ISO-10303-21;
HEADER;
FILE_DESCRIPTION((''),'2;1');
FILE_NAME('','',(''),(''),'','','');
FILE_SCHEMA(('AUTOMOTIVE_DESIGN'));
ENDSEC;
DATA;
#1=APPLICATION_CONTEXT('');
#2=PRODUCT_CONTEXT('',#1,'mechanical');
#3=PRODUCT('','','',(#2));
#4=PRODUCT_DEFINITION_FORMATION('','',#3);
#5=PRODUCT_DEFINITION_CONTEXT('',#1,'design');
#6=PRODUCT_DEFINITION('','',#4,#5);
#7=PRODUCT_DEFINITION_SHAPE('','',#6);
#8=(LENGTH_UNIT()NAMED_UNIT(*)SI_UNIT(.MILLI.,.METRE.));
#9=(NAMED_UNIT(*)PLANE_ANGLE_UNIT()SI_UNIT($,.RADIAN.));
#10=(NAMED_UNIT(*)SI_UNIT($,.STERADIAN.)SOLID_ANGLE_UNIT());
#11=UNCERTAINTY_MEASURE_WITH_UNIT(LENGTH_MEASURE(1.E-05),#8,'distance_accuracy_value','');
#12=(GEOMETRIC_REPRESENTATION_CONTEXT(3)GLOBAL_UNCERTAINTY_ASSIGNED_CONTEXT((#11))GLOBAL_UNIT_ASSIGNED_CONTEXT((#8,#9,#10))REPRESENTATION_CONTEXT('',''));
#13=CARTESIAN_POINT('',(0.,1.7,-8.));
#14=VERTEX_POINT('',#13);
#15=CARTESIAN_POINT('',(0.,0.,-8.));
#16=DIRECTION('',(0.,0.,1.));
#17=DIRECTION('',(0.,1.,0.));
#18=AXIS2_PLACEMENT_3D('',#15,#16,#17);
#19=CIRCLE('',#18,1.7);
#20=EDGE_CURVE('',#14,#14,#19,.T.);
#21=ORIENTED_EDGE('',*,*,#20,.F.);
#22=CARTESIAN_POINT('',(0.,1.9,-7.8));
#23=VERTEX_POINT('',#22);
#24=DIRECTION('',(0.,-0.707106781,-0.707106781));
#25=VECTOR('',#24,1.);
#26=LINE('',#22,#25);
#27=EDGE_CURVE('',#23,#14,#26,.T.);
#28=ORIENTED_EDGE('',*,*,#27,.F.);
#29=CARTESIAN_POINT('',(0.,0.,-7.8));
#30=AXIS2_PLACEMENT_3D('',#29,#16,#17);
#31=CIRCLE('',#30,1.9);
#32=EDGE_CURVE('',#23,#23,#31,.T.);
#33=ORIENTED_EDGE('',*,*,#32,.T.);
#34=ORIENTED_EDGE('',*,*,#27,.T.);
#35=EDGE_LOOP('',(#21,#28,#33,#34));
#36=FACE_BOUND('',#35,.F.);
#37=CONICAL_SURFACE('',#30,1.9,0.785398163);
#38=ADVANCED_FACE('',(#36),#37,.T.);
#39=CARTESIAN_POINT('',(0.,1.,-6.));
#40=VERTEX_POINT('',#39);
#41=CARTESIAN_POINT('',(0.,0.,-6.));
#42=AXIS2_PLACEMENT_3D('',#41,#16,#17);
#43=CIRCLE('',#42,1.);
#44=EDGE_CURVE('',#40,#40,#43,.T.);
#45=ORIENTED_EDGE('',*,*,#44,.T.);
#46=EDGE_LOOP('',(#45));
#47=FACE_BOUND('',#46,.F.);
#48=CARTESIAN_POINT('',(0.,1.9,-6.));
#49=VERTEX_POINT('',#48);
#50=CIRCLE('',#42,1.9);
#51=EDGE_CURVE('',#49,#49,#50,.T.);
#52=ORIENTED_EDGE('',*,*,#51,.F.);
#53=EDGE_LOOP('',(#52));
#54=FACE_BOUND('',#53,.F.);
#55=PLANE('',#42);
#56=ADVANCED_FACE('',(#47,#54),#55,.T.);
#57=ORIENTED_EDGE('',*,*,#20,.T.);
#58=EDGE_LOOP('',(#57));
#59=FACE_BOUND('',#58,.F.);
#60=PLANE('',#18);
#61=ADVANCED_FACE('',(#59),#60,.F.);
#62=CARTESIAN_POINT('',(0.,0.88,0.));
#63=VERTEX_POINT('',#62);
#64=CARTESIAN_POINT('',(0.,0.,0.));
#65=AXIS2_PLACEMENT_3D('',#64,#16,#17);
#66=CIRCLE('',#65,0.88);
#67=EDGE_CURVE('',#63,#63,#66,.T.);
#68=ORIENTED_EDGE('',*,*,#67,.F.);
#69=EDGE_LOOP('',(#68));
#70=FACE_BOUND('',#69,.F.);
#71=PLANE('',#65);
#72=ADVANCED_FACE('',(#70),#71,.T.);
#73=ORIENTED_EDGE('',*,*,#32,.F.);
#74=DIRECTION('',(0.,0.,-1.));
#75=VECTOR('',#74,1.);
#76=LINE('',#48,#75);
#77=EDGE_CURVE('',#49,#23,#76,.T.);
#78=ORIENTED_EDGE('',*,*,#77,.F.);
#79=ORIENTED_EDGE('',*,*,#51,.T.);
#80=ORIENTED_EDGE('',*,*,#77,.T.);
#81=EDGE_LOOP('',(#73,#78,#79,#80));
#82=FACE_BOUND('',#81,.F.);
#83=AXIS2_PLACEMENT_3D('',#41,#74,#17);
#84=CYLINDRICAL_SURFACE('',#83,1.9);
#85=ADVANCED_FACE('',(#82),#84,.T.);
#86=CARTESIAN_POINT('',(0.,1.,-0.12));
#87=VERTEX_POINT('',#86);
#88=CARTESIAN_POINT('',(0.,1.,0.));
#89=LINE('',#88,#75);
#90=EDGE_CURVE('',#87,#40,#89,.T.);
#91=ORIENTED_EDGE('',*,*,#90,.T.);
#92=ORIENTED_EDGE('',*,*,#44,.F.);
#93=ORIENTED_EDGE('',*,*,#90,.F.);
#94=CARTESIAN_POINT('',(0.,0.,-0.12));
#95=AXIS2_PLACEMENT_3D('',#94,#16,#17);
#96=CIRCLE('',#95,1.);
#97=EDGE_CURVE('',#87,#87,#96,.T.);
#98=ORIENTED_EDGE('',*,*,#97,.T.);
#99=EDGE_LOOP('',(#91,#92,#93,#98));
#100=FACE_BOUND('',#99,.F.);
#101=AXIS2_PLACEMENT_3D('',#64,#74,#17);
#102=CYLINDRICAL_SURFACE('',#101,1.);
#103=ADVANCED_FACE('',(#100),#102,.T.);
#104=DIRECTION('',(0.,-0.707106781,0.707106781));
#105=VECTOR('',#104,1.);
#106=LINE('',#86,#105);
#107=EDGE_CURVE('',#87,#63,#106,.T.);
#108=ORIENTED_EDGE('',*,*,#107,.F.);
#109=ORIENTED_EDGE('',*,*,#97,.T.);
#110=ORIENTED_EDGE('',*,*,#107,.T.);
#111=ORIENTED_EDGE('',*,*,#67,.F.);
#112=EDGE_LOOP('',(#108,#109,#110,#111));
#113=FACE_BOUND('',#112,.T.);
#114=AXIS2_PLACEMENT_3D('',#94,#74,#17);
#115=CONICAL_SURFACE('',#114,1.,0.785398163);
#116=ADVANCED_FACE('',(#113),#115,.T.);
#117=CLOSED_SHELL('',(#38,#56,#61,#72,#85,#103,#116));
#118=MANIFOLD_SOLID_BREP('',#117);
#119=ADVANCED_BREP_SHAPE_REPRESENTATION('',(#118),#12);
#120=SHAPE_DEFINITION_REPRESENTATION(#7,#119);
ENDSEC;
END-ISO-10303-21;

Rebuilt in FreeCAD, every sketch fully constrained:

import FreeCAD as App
import Part
import Sketcher

V = App.Vector
Q = App.Units.Quantity


def add_polygon(sketch, points):
    """Adds a closed chain of lines whose ends are joined by coincident constraints."""
    first, n = sketch.GeometryCount, len(points)
    for a, b in zip(points, points[1:] + points[:1]):
        sketch.addGeometry(Part.LineSegment(App.Vector(*a, 0), App.Vector(*b, 0)), False)
    for i in range(n):
        sketch.addConstraint(Sketcher.Constraint("Coincident", first + i, 2, first + (i + 1) % n, 1))

doc = App.newDocument("Part")
body = doc.addObject("PartDesign::Body", "Body")

# Sketch on YZ plane
sketch1 = doc.addObject("Sketcher::SketchObject", "Sketch")
body.addObject(sketch1)
sketch1.AttachmentSupport = (doc.YZ_Plane, [""])
sketch1.MapMode = "FlatFace"
add_polygon(sketch1, [(0.88, 0), (0, 0), (0, -8), (1.7, -8), (1.9, -7.8), (1.9, -6), (1, -6), (1, -0.12)])  # lines 0-7
sketch1.addConstraint([
    Sketcher.Constraint("Horizontal", 0),
    Sketcher.Constraint("Vertical", 1),
    Sketcher.Constraint("Horizontal", 2),
    Sketcher.Constraint("Vertical", 4),
    Sketcher.Constraint("Horizontal", 5),
    Sketcher.Constraint("Vertical", 6),
    Sketcher.Constraint("Coincident", 0, 2, -1, 1),
    Sketcher.Constraint("Perpendicular", 3, 7),
    Sketcher.Constraint("Angle", 3, Q("45 deg")),
    Sketcher.Constraint("DistanceY", 4, 2, -1, 1, 6.0),
    Sketcher.Constraint("DistanceX", -1, 1, 5, 2, 1.0),
    Sketcher.Constraint("DistanceY", 2, 2, 4, 2, 2.0),
    Sketcher.Constraint("DistanceX", -1, 1, 3, 2, 1.9),
    Sketcher.Constraint("DistanceX", 2, 2, 3, 2, 0.2),
    Sketcher.Constraint("DistanceY", 6, 2, -1, 1, 0.12),
])
revolution = doc.addObject("PartDesign::Revolution", "Revolution")
body.addObject(revolution)
revolution.Profile = sketch1
revolution.ReferenceAxis = (sketch1, ["V_Axis"])
revolution.Angle = 360

doc.recompute()
